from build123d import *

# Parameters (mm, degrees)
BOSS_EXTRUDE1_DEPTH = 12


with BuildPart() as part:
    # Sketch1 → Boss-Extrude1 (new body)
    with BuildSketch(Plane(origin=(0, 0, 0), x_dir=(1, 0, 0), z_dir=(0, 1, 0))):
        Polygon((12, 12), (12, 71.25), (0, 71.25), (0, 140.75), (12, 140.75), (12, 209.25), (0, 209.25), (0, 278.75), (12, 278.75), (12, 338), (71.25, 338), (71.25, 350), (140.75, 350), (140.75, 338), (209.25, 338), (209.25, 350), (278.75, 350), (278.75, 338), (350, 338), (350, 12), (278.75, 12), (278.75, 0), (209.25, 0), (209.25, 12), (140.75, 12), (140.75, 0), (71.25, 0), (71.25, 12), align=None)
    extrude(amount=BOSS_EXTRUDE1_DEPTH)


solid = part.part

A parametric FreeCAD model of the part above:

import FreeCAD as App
import Part
import Sketcher
from FreeCAD import Vector
Q = App.Units.Quantity


def add_polygon(sketch, points):
    """Adds a closed chain of lines whose ends are joined by coincident constraints."""
    first, n = sketch.GeometryCount, len(points)
    for a, b in zip(points, points[1:] + points[:1]):
        sketch.addGeometry(Part.LineSegment(App.Vector(*a, 0), App.Vector(*b, 0)), False)
    for i in range(n):
        sketch.addConstraint(Sketcher.Constraint("Coincident", first + i, 2, first + (i + 1) % n, 1))

doc = App.newDocument("Part")
body = doc.addObject("PartDesign::Body", "Body")

sketch1 = doc.addObject("Sketcher::SketchObject", "Sketch")
body.addObject(sketch1)
sketch1.AttachmentSupport = (doc.XZ_Plane, [""])
sketch1.MapMode = "FlatFace"
add_polygon(sketch1, [(12, -71), (12, -12), (71, -12), (71, 0), (141, 0), (141, -12), (209, -12), (209, 0), (279, 0), (279, -12), (350, -12), (350, -338), (279, -338), (279, -350), (209, -350), (209, -338), (141, -338), (141, -350), (71, -350), (71, -338), (12, -338), (12, -279), (0, -279), (0, -209), (12, -209), (12, -141), (0, -141), (0, -71)])
sketch1.addConstraint(Sketcher.Constraint("Vertical", 0))
sketch1.addConstraint(Sketcher.Constraint("Horizontal", 1))
sketch1.addConstraint(Sketcher.Constraint("Vertical", 2))
sketch1.addConstraint(Sketcher.Constraint("Horizontal", 3))
sketch1.addConstraint(Sketcher.Constraint("Vertical", 4))
sketch1.addConstraint(Sketcher.Constraint("Horizontal", 5))
sketch1.addConstraint(Sketcher.Constraint("Vertical", 6))
sketch1.addConstraint(Sketcher.Constraint("Horizontal", 7))
sketch1.addConstraint(Sketcher.Constraint("Vertical", 8))
sketch1.addConstraint(Sketcher.Constraint("Horizontal", 9))
sketch1.addConstraint(Sketcher.Constraint("Vertical", 10))
sketch1.addConstraint(Sketcher.Constraint("Horizontal", 11))
sketch1.addConstraint(Sketcher.Constraint("Vertical", 12))
sketch1.addConstraint(Sketcher.Constraint("Horizontal", 13))
sketch1.addConstraint(Sketcher.Constraint("Vertical", 14))
sketch1.addConstraint(Sketcher.Constraint("Horizontal", 15))
sketch1.addConstraint(Sketcher.Constraint("Vertical", 16))
sketch1.addConstraint(Sketcher.Constraint("Horizontal", 17))
sketch1.addConstraint(Sketcher.Constraint("Vertical", 18))
sketch1.addConstraint(Sketcher.Constraint("Horizontal", 19))
sketch1.addConstraint(Sketcher.Constraint("Vertical", 20))
sketch1.addConstraint(Sketcher.Constraint("Horizontal", 21))
sketch1.addConstraint(Sketcher.Constraint("Vertical", 22))
sketch1.addConstraint(Sketcher.Constraint("Horizontal", 23))
sketch1.addConstraint(Sketcher.Constraint("Vertical", 24))
sketch1.addConstraint(Sketcher.Constraint("Horizontal", 25))
sketch1.addConstraint(Sketcher.Constraint("Vertical", 26))
sketch1.addConstraint(Sketcher.Constraint("Horizontal", 27))
sketch1.addConstraint(Sketcher.Constraint("PointOnObject", 2, 2, -1))
sketch1.addConstraint(Sketcher.Constraint("PointOnObject", 6, 2, -1))
sketch1.addConstraint(Sketcher.Constraint("PointOnObject", 21, 2, -2))
sketch1.addConstraint(Sketcher.Constraint("PointOnObject", 25, 2, -2))
sketch1.addConstraint(Sketcher.Constraint("Horizontal", 1, 2, 4, 2))
sketch1.addConstraint(Sketcher.Constraint("Horizontal", 5, 2, 8, 2))
sketch1.addConstraint(Sketcher.Constraint("Horizontal", 11, 2, 14, 2))
sketch1.addConstraint(Sketcher.Constraint("Horizontal", 13, 2, 16, 2))
sketch1.addConstraint(Sketcher.Constraint("Horizontal", 15, 2, 18, 2))
sketch1.addConstraint(Sketcher.Constraint("Vertical", 8, 2, 11, 2))
sketch1.addConstraint(Sketcher.Constraint("Vertical", 6, 2, 13, 2))
sketch1.addConstraint(Sketcher.Constraint("Vertical", 4, 2, 15, 2))
sketch1.addConstraint(Sketcher.Constraint("Vertical", 2, 2, 17, 2))
sketch1.addConstraint(Sketcher.Constraint("Vertical", 0, 2, 19, 2))
sketch1.addConstraint(Sketcher.Constraint("Vertical", 20, 2, 23, 2))
sketch1.addConstraint(Sketcher.Constraint("Equal", 3, 7))
sketch1.addConstraint(Sketcher.Constraint("Equal", 19, 0))
sketch1.addConstraint(Sketcher.Constraint("Equal", 27, 2))
sketch1.addConstraint(Sketcher.Constraint("Equal", 8, 12))
sketch1.addConstraint(Sketcher.Constraint("Equal", 0, 20))
sketch1.addConstraint(Sketcher.Constraint("Equal", 17, 22))
sketch1.addConstraint(Sketcher.Constraint("Equal", 15, 24))
sketch1.addConstraint(Sketcher.Constraint("Equal", 22, 26))
sketch1.addConstraint(Sketcher.Constraint("DistanceX", 21, 2, 21, 1, Q("12 mm")))
sketch1.addConstraint(Sketcher.Constraint("DistanceY", 10, 2, 10, 1, Q("326 mm")))
sketch1.addConstraint(Sketcher.Constraint("DistanceX", 3, 1, 3, 2, Q("69.5 mm")))
sketch1.addConstraint(Sketcher.Constraint("DistanceX", 5, 1, 5, 2, Q("68.5 mm")))
sketch1.addConstraint(Sketcher.Constraint("DistanceX", -1, 1, 9, 2, Q("350 mm")))
pad1 = doc.addObject("PartDesign::Pad", "Pad")
body.addObject(pad1)
pad1.Profile = sketch1
pad1.Length = 12
pad1.Reversed = True

doc.recompute()
